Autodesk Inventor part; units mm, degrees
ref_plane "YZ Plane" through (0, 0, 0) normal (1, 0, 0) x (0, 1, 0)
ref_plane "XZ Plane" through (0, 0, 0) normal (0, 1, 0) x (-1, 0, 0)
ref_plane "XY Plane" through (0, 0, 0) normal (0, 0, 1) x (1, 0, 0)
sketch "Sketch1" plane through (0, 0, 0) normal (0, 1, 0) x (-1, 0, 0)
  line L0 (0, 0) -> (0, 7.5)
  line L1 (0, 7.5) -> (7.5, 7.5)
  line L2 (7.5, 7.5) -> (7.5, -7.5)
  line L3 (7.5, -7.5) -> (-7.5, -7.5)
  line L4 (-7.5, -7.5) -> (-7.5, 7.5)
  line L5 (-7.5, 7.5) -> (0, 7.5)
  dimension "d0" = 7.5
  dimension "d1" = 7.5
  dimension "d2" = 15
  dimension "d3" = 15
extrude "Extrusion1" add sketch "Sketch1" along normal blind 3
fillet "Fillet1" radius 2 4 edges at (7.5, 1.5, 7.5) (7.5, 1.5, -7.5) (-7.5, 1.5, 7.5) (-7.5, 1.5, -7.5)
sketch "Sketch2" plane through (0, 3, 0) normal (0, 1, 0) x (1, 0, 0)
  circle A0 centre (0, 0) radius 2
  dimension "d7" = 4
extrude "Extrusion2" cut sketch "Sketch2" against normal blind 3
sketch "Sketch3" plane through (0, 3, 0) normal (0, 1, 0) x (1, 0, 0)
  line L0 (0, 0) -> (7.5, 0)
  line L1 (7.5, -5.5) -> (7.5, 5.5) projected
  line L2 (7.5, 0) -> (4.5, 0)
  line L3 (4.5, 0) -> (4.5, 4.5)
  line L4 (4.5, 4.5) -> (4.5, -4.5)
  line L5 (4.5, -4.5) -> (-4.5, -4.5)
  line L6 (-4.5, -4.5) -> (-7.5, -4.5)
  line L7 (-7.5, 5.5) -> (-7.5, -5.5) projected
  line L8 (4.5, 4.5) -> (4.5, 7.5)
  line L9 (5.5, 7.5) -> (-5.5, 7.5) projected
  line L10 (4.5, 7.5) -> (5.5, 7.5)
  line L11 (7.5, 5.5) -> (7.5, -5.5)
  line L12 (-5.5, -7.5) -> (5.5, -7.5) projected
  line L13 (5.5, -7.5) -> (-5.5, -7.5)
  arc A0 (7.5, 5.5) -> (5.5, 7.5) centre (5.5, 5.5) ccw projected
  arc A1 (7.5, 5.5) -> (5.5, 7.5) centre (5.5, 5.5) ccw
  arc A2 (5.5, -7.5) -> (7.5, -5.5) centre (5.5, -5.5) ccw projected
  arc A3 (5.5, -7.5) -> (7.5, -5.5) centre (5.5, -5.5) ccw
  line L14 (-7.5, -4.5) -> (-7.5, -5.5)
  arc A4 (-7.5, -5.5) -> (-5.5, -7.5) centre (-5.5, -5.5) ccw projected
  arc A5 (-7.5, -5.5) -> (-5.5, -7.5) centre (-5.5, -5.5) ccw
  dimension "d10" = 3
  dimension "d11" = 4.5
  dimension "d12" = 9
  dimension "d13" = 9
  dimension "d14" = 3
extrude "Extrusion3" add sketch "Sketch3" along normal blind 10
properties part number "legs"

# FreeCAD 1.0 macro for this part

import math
import FreeCAD as App
import Part
import Sketcher


def edges_at(feature, points):
    """Names of the edges that pass closest to the given points."""
    edges = feature.Shape.Edges
    near = lambda p: min(range(len(edges)), key=lambda i: edges[i].distToShape(Part.Vertex(*p))[0])
    return sorted({f"Edge{near(p) + 1}" for p in points})


def add_polygon(sketch, points):
    """Adds a closed chain of lines whose ends are joined by coincident constraints."""
    first, n = sketch.GeometryCount, len(points)
    for a, b in zip(points, points[1:] + points[:1]):
        sketch.addGeometry(Part.LineSegment(App.Vector(*a, 0), App.Vector(*b, 0)), False)
    for i in range(n):
        sketch.addConstraint(Sketcher.Constraint("Coincident", first + i, 2, first + (i + 1) % n, 1))

doc = App.newDocument("Part")
params = doc.addObject("Spreadsheet::Sheet", "Params")
for row, (alias, value) in enumerate([
    ("sketch1_width", "15 mm"),
    ("pad1_length", "3 mm"),
    ("fillet_radius", "2 mm"),
    ("sketch2_diameter", "4 mm"),
    ("pocket1_length", "3 mm"),
    ("sketch3_radius", "2 mm"),
    ("pad2_length", "10 mm"),
], start=1):
    params.set(f"A{row}", alias)
    params.set(f"B{row}", "=" + value)
    params.setAlias(f"B{row}", alias)

body = doc.addObject("PartDesign::Body", "Body")

# Sketch on XZ plane
sketch1 = doc.addObject("Sketcher::SketchObject", "Sketch")
body.addObject(sketch1)
sketch1.AttachmentSupport = (doc.XZ_Plane, [""])
sketch1.MapMode = "FlatFace"
add_polygon(sketch1, [(-7.5, 7.5), (7.5, 7.5), (7.5, -7.5), (-7.5, -7.5)])  # lines 0-3
sketch1.addConstraint([
    Sketcher.Constraint("Horizontal", 0),
    Sketcher.Constraint("Vertical", 1),
    Sketcher.Constraint("Horizontal", 2),
    Sketcher.Constraint("Vertical", 3),
    Sketcher.Constraint("Symmetric", 0, 2, 2, 2, -1, 1),
    Sketcher.Constraint("Equal", 2, 1),
    Sketcher.Constraint("DistanceX", 0, 1, 0, 2, 15.0),
])
sketch1.setExpression("Constraints[10]", "Params.sketch1_width")
pad1 = doc.addObject("PartDesign::Pad", "Pad")
body.addObject(pad1)
pad1.Profile = sketch1
pad1.setExpression("Length", "Params.pad1_length")
pad1.Reversed = True
doc.recompute()

fillet = doc.addObject("PartDesign::Fillet", "Fillet")
body.addObject(fillet)
fillet.Base = (pad1, edges_at(pad1, [
    (7.5, 1.5, 7.5),
    (7.5, 1.5, -7.5),
    (-7.5, 1.5, 7.5),
    (-7.5, 1.5, -7.5),
]))
fillet.setExpression("Radius", "Params.fillet_radius")

# Sketch on XZ plane
sketch2 = doc.addObject("Sketcher::SketchObject", "Sketch001")
body.addObject(sketch2)
sketch2.AttachmentSupport = (doc.XZ_Plane, [""])
sketch2.MapMode = "FlatFace"
sketch2.AttachmentOffset = App.Placement(App.Vector(0, 0, -3), App.Rotation())
sketch2.addGeometry(Part.Circle(App.Vector(0, 0, 0), App.Vector(0, 0, 1), 2), False)
sketch2.addConstraint([
    Sketcher.Constraint("Coincident", 0, 3, -1, 1),
    Sketcher.Constraint("Diameter", 0, 4.0),
])
sketch2.setExpression("Constraints[1]", "Params.sketch2_diameter")
pocket1 = doc.addObject("PartDesign::Pocket", "Pocket")
body.addObject(pocket1)
pocket1.Profile = sketch2
pocket1.setExpression("Length", "Params.pocket1_length")
pocket1.Reversed = True

# Sketch on XZ plane
sketch3 = doc.addObject("Sketcher::SketchObject", "Sketch002")
body.addObject(sketch3)
sketch3.AttachmentSupport = (doc.XZ_Plane, [""])
sketch3.MapMode = "FlatFace"
sketch3.AttachmentOffset = App.Placement(App.Vector(0, 0, -3), App.Rotation())
sketch3.addGeometry([
    Part.LineSegment(App.Vector(4.5, 4.5, 0), App.Vector(-7.5, 4.5, 0)),  # 0
    Part.LineSegment(App.Vector(-7.5, 4.5, 0), App.Vector(-7.5, 5.5, 0)),  # 1
    Part.ArcOfCircle(Part.Circle(App.Vector(-5.5, 5.5, 0), App.Vector(0, 0, 1), 2), math.radians(90), math.radians(180)),  # 2
    Part.LineSegment(App.Vector(-5.5, 7.5, 0), App.Vector(5.5, 7.5, 0)),  # 3
    Part.ArcOfCircle(Part.Circle(App.Vector(5.5, 5.5, 0), App.Vector(0, 0, 1), 2), math.radians(0), math.radians(90)),  # 4
    Part.LineSegment(App.Vector(7.5, 5.5, 0), App.Vector(7.5, -5.5, 0)),  # 5
    Part.ArcOfCircle(Part.Circle(App.Vector(5.5, -5.5, 0), App.Vector(0, 0, 1), 2), math.radians(-90), math.radians(0)),  # 6
    Part.LineSegment(App.Vector(5.5, -7.5, 0), App.Vector(4.5, -7.5, 0)),  # 7
    Part.LineSegment(App.Vector(4.5, -7.5, 0), App.Vector(4.5, 4.5, 0)),  # 8
], False)
sketch3.addConstraint([
    Sketcher.Constraint("Coincident", 0, 2, 1, 1),
    Sketcher.Constraint("Tangent", 1, 2, 2, 2),
    Sketcher.Constraint("Tangent", 2, 1, 3, 1),
    Sketcher.Constraint("Tangent", 3, 2, 4, 2),
    Sketcher.Constraint("Tangent", 4, 1, 5, 1),
    Sketcher.Constraint("Tangent", 5, 2, 6, 2),
    Sketcher.Constraint("Tangent", 6, 1, 7, 1),
    Sketcher.Constraint("Coincident", 7, 2, 8, 1),
    Sketcher.Constraint("Coincident", 8, 2, 0, 1),
    Sketcher.Constraint("Horizontal", 0),
    Sketcher.Constraint("Vertical", 1),
    Sketcher.Constraint("Horizontal", 3),
    Sketcher.Constraint("Vertical", 5),
    Sketcher.Constraint("Horizontal", 7),
    Sketcher.Constraint("Vertical", 8),
    Sketcher.Constraint("Equal", 2, 4),
    Sketcher.Constraint("Equal", 4, 6),
    Sketcher.Constraint("Symmetric", 2, 3, 6, 3, -1, 1),
    Sketcher.Constraint("Equal", 7, 1),
    Sketcher.Constraint("Equal", 3, 5),
    Sketcher.Constraint("Radius", 2, 2.0),
    Sketcher.Constraint("DistanceY", 0, 2, 2, 1, 3.0),
    Sketcher.Constraint("DistanceY", -1, 1, 0, 2, 4.5),
])
sketch3.setExpression("Constraints[20]", "Params.sketch3_radius")
pad2 = doc.addObject("PartDesign::Pad", "Pad001")
body.addObject(pad2)
pad2.Profile = sketch3
pad2.setExpression("Length", "Params.pad2_length")
pad2.Reversed = True

doc.recompute()
